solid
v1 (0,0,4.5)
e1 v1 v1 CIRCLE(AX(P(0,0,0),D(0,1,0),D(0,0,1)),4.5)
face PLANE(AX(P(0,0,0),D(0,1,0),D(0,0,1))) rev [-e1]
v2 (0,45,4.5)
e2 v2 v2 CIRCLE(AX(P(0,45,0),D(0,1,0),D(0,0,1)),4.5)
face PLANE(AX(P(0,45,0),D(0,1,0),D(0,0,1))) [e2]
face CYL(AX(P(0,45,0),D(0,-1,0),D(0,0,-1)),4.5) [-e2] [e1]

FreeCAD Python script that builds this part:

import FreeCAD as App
import Part
import Sketcher

V = App.Vector

doc = App.newDocument("Part")
body = doc.addObject("PartDesign::Body", "Body")

# Sketch on XZ plane
sketch1 = doc.addObject("Sketcher::SketchObject", "Sketch")
body.addObject(sketch1)
sketch1.AttachmentSupport = (doc.XZ_Plane, [""])
sketch1.MapMode = "FlatFace"
sketch1.addGeometry(Part.Circle(V(0, 0, 0), V(0, 0, 1), 4.5), False)
sketch1.addConstraint([
    Sketcher.Constraint("Coincident", 0, 3, -1, 1),
    Sketcher.Constraint("Diameter", 0, 9.0),
])
pad1 = doc.addObject("PartDesign::Pad", "Pad")
body.addObject(pad1)
pad1.Profile = sketch1
pad1.Length = 45
pad1.Reversed = True

doc.recompute()
